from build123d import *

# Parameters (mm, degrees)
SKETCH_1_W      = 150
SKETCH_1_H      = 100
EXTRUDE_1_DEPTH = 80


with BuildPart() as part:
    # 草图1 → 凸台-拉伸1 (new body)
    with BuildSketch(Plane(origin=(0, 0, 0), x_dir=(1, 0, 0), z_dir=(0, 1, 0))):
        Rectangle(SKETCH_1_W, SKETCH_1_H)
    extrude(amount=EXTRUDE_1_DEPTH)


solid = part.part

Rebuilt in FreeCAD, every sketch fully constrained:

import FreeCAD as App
import Part
import Sketcher
Q = App.Units.Quantity


def add_polygon(sketch, points):
    """Adds a closed chain of lines whose ends are joined by coincident constraints."""
    first, n = sketch.GeometryCount, len(points)
    for a, b in zip(points, points[1:] + points[:1]):
        sketch.addGeometry(Part.LineSegment(App.Vector(*a, 0), App.Vector(*b, 0)), False)
    for i in range(n):
        sketch.addConstraint(Sketcher.Constraint("Coincident", first + i, 2, first + (i + 1) % n, 1))

doc = App.newDocument("Part")
params = doc.addObject("Spreadsheet::Sheet", "Params")
for row, (alias, value) in enumerate([
    ("sketch1_width", "150 mm"),
    ("sketch1_height", "100 mm"),
    ("pad1_length", "80 mm"),
], start=1):
    params.set(f"A{row}", alias)
    params.set(f"B{row}", "=" + value)
    params.setAlias(f"B{row}", alias)

body = doc.addObject("PartDesign::Body", "Body")

# Sketch on XZ plane
sketch1 = doc.addObject("Sketcher::SketchObject", "Sketch")
body.addObject(sketch1)
sketch1.AttachmentSupport = (doc.XZ_Plane, [""])
sketch1.MapMode = "FlatFace"
add_polygon(sketch1, [(-75, -50), (-75, 50), (75, 50), (75, -50)])  # lines 0-3
sketch1.addConstraint([
    Sketcher.Constraint("Vertical", 0),
    Sketcher.Constraint("Horizontal", 1),
    Sketcher.Constraint("Vertical", 2),
    Sketcher.Constraint("Horizontal", 3),
    Sketcher.Constraint("Symmetric", 0, 2, 2, 2, -1, 1),
    Sketcher.Constraint("DistanceX", 1, 1, 1, 2, Q("150 mm")),
    Sketcher.Constraint("DistanceY", 0, 1, 0, 2, Q("100 mm")),
])
sketch1.setExpression("Constraints[9]", "Params.sketch1_width")
sketch1.setExpression("Constraints[10]", "Params.sketch1_height")
pad1 = doc.addObject("PartDesign::Pad", "Pad")
body.addObject(pad1)
pad1.Profile = sketch1
pad1.setExpression("Length", "Params.pad1_length")
pad1.Reversed = True

doc.recompute()
